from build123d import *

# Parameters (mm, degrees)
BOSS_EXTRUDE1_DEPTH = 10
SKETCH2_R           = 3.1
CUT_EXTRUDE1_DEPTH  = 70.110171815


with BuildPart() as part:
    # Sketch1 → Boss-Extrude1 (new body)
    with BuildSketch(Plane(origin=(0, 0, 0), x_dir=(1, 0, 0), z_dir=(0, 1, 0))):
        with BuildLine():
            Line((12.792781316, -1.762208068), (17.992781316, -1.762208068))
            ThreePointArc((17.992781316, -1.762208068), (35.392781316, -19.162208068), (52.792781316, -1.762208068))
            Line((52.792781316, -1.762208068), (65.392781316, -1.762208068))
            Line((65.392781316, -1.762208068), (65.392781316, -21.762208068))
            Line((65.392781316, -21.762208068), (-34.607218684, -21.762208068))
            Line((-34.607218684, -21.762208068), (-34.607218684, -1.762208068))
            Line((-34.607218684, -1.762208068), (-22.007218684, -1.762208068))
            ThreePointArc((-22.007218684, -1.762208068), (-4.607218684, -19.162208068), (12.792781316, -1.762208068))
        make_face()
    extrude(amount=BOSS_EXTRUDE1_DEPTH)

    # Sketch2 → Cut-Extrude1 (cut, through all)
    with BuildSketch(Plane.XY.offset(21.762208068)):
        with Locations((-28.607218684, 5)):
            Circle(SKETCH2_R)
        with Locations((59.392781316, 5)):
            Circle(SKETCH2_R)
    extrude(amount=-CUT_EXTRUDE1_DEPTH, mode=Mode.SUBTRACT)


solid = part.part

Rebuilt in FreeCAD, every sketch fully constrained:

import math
import FreeCAD as App
import Part
import Sketcher

V = App.Vector
Q = App.Units.Quantity

doc = App.newDocument("Part")
params = doc.addObject("Spreadsheet::Sheet", "Params")
for row, (alias, value) in enumerate([
    ("sketch1_radius", "17.4 mm"),
    ("sketch1_width", "100 mm"),
    ("sketch1_height", "20 mm"),
    ("sketch1_width2", "5.2 mm"),
    ("pad1_length", "10 mm"),
    ("sketch2_diameter", "6.2 mm"),
], start=1):
    params.set(f"A{row}", alias)
    params.set(f"B{row}", "=" + value)
    params.setAlias(f"B{row}", alias)

body = doc.addObject("PartDesign::Body", "Body")

sketch1 = body.newObject("Sketcher::SketchObject", "Sketch")
sketch1.AttachmentSupport = (doc.getObject("XZ_Plane"), [""])
sketch1.MapMode = "FlatFace"
sketch1.addGeometry([
    Part.LineSegment(V(17.992781, 1.762208, 0), V(12.792781, 1.762208, 0)),
    Part.ArcOfCircle(Part.Circle(V(-4.607219, 1.762208, 0), V(0, 0, 1), 17.4), math.radians(0), math.radians(180)),
    Part.LineSegment(V(-22.007219, 1.762208, 0), V(-34.607219, 1.762208, 0)),
    Part.LineSegment(V(-34.607219, 1.762208, 0), V(-34.607219, 21.762208, 0)),
    Part.LineSegment(V(-34.607219, 21.762208, 0), V(65.392781, 21.762208, 0)),
    Part.LineSegment(V(65.392781, 21.762208, 0), V(65.392781, 1.762208, 0)),
    Part.LineSegment(V(65.392781, 1.762208, 0), V(52.792781, 1.762208, 0)),
    Part.ArcOfCircle(Part.Circle(V(35.392781, 1.762208, 0), V(0, 0, 1), 17.4), math.radians(0), math.radians(180)),
], False)
sketch1.addConstraint([
    Sketcher.Constraint("Coincident", 0, 2, 1, 1),
    Sketcher.Constraint("Coincident", 1, 2, 2, 1),
    Sketcher.Constraint("Coincident", 2, 2, 3, 1),
    Sketcher.Constraint("Coincident", 3, 2, 4, 1),
    Sketcher.Constraint("Coincident", 4, 2, 5, 1),
    Sketcher.Constraint("Coincident", 5, 2, 6, 1),
    Sketcher.Constraint("Coincident", 6, 2, 7, 1),
    Sketcher.Constraint("Coincident", 7, 2, 0, 1),
    Sketcher.Constraint("Horizontal", 0),
    Sketcher.Constraint("Horizontal", 2),
    Sketcher.Constraint("Vertical", 3),
    Sketcher.Constraint("Horizontal", 4),
    Sketcher.Constraint("Vertical", 5),
    Sketcher.Constraint("Horizontal", 6),
    Sketcher.Constraint("Equal", 1, 7),
    Sketcher.Constraint("Horizontal", 1, 3, 7, 3),
    Sketcher.Constraint("Horizontal", 7, 3, 0, 2),
    Sketcher.Constraint("Horizontal", 0, 2, 1, 2),
    Sketcher.Constraint("Horizontal", 2, 2, 5, 2),
    Sketcher.Constraint("Equal", 2, 6),
    Sketcher.Constraint("Radius", 1, Q("17.4 mm")),
    Sketcher.Constraint("DistanceX", 4, 1, 4, 2, Q("100 mm")),
    Sketcher.Constraint("DistanceY", 3, 1, 3, 2, Q("20 mm")),
    Sketcher.Constraint("DistanceX", 0, 2, 0, 1, Q("5.2 mm")),
    Sketcher.Constraint("DistanceX", 1, 3, -1, 1, Q("4.607219 mm")),
    Sketcher.Constraint("DistanceY", -1, 1, 1, 3, Q("1.762208 mm")),
])
sketch1.setExpression("Constraints[20]", "Params.sketch1_radius")
sketch1.setExpression("Constraints[21]", "Params.sketch1_width")
sketch1.setExpression("Constraints[22]", "Params.sketch1_height")
sketch1.setExpression("Constraints[23]", "Params.sketch1_width2")
pad1 = body.newObject("PartDesign::Pad", "Pad")
pad1.Profile = sketch1
pad1.setExpression("Length", "Params.pad1_length")
pad1.Reversed = True

sketch2 = body.newObject("Sketcher::SketchObject", "Sketch001")
sketch2.AttachmentSupport = (doc.getObject("XY_Plane"), [""])
sketch2.MapMode = "FlatFace"
sketch2.AttachmentOffset = App.Placement(V(0, 0, 21.762208), App.Rotation())
sketch2.addGeometry([
    Part.Circle(V(-28.607219, 5, 0), V(0, 0, 1), 3.1),
    Part.Circle(V(59.392781, 5, 0), V(0, 0, 1), 3.1),
], False)
sketch2.addConstraint([
    Sketcher.Constraint("Equal", 0, 1),
    Sketcher.Constraint("Horizontal", 0, 3, 1, 3),
    Sketcher.Constraint("Diameter", 0, Q("6.2 mm")),
    Sketcher.Constraint("DistanceY", -1, 1, 0, 3, Q("5 mm")),
    Sketcher.Constraint("DistanceX", 0, 3, 1, 3, Q("88 mm")),
    Sketcher.Constraint("DistanceX", 0, 3, -1, 1, Q("28.607219 mm")),
])
sketch2.setExpression("Constraints[2]", "Params.sketch2_diameter")
pocket1 = body.newObject("PartDesign::Pocket", "Pocket")
pocket1.Profile = sketch2
pocket1.Type = "ThroughAll"

doc.recompute()
